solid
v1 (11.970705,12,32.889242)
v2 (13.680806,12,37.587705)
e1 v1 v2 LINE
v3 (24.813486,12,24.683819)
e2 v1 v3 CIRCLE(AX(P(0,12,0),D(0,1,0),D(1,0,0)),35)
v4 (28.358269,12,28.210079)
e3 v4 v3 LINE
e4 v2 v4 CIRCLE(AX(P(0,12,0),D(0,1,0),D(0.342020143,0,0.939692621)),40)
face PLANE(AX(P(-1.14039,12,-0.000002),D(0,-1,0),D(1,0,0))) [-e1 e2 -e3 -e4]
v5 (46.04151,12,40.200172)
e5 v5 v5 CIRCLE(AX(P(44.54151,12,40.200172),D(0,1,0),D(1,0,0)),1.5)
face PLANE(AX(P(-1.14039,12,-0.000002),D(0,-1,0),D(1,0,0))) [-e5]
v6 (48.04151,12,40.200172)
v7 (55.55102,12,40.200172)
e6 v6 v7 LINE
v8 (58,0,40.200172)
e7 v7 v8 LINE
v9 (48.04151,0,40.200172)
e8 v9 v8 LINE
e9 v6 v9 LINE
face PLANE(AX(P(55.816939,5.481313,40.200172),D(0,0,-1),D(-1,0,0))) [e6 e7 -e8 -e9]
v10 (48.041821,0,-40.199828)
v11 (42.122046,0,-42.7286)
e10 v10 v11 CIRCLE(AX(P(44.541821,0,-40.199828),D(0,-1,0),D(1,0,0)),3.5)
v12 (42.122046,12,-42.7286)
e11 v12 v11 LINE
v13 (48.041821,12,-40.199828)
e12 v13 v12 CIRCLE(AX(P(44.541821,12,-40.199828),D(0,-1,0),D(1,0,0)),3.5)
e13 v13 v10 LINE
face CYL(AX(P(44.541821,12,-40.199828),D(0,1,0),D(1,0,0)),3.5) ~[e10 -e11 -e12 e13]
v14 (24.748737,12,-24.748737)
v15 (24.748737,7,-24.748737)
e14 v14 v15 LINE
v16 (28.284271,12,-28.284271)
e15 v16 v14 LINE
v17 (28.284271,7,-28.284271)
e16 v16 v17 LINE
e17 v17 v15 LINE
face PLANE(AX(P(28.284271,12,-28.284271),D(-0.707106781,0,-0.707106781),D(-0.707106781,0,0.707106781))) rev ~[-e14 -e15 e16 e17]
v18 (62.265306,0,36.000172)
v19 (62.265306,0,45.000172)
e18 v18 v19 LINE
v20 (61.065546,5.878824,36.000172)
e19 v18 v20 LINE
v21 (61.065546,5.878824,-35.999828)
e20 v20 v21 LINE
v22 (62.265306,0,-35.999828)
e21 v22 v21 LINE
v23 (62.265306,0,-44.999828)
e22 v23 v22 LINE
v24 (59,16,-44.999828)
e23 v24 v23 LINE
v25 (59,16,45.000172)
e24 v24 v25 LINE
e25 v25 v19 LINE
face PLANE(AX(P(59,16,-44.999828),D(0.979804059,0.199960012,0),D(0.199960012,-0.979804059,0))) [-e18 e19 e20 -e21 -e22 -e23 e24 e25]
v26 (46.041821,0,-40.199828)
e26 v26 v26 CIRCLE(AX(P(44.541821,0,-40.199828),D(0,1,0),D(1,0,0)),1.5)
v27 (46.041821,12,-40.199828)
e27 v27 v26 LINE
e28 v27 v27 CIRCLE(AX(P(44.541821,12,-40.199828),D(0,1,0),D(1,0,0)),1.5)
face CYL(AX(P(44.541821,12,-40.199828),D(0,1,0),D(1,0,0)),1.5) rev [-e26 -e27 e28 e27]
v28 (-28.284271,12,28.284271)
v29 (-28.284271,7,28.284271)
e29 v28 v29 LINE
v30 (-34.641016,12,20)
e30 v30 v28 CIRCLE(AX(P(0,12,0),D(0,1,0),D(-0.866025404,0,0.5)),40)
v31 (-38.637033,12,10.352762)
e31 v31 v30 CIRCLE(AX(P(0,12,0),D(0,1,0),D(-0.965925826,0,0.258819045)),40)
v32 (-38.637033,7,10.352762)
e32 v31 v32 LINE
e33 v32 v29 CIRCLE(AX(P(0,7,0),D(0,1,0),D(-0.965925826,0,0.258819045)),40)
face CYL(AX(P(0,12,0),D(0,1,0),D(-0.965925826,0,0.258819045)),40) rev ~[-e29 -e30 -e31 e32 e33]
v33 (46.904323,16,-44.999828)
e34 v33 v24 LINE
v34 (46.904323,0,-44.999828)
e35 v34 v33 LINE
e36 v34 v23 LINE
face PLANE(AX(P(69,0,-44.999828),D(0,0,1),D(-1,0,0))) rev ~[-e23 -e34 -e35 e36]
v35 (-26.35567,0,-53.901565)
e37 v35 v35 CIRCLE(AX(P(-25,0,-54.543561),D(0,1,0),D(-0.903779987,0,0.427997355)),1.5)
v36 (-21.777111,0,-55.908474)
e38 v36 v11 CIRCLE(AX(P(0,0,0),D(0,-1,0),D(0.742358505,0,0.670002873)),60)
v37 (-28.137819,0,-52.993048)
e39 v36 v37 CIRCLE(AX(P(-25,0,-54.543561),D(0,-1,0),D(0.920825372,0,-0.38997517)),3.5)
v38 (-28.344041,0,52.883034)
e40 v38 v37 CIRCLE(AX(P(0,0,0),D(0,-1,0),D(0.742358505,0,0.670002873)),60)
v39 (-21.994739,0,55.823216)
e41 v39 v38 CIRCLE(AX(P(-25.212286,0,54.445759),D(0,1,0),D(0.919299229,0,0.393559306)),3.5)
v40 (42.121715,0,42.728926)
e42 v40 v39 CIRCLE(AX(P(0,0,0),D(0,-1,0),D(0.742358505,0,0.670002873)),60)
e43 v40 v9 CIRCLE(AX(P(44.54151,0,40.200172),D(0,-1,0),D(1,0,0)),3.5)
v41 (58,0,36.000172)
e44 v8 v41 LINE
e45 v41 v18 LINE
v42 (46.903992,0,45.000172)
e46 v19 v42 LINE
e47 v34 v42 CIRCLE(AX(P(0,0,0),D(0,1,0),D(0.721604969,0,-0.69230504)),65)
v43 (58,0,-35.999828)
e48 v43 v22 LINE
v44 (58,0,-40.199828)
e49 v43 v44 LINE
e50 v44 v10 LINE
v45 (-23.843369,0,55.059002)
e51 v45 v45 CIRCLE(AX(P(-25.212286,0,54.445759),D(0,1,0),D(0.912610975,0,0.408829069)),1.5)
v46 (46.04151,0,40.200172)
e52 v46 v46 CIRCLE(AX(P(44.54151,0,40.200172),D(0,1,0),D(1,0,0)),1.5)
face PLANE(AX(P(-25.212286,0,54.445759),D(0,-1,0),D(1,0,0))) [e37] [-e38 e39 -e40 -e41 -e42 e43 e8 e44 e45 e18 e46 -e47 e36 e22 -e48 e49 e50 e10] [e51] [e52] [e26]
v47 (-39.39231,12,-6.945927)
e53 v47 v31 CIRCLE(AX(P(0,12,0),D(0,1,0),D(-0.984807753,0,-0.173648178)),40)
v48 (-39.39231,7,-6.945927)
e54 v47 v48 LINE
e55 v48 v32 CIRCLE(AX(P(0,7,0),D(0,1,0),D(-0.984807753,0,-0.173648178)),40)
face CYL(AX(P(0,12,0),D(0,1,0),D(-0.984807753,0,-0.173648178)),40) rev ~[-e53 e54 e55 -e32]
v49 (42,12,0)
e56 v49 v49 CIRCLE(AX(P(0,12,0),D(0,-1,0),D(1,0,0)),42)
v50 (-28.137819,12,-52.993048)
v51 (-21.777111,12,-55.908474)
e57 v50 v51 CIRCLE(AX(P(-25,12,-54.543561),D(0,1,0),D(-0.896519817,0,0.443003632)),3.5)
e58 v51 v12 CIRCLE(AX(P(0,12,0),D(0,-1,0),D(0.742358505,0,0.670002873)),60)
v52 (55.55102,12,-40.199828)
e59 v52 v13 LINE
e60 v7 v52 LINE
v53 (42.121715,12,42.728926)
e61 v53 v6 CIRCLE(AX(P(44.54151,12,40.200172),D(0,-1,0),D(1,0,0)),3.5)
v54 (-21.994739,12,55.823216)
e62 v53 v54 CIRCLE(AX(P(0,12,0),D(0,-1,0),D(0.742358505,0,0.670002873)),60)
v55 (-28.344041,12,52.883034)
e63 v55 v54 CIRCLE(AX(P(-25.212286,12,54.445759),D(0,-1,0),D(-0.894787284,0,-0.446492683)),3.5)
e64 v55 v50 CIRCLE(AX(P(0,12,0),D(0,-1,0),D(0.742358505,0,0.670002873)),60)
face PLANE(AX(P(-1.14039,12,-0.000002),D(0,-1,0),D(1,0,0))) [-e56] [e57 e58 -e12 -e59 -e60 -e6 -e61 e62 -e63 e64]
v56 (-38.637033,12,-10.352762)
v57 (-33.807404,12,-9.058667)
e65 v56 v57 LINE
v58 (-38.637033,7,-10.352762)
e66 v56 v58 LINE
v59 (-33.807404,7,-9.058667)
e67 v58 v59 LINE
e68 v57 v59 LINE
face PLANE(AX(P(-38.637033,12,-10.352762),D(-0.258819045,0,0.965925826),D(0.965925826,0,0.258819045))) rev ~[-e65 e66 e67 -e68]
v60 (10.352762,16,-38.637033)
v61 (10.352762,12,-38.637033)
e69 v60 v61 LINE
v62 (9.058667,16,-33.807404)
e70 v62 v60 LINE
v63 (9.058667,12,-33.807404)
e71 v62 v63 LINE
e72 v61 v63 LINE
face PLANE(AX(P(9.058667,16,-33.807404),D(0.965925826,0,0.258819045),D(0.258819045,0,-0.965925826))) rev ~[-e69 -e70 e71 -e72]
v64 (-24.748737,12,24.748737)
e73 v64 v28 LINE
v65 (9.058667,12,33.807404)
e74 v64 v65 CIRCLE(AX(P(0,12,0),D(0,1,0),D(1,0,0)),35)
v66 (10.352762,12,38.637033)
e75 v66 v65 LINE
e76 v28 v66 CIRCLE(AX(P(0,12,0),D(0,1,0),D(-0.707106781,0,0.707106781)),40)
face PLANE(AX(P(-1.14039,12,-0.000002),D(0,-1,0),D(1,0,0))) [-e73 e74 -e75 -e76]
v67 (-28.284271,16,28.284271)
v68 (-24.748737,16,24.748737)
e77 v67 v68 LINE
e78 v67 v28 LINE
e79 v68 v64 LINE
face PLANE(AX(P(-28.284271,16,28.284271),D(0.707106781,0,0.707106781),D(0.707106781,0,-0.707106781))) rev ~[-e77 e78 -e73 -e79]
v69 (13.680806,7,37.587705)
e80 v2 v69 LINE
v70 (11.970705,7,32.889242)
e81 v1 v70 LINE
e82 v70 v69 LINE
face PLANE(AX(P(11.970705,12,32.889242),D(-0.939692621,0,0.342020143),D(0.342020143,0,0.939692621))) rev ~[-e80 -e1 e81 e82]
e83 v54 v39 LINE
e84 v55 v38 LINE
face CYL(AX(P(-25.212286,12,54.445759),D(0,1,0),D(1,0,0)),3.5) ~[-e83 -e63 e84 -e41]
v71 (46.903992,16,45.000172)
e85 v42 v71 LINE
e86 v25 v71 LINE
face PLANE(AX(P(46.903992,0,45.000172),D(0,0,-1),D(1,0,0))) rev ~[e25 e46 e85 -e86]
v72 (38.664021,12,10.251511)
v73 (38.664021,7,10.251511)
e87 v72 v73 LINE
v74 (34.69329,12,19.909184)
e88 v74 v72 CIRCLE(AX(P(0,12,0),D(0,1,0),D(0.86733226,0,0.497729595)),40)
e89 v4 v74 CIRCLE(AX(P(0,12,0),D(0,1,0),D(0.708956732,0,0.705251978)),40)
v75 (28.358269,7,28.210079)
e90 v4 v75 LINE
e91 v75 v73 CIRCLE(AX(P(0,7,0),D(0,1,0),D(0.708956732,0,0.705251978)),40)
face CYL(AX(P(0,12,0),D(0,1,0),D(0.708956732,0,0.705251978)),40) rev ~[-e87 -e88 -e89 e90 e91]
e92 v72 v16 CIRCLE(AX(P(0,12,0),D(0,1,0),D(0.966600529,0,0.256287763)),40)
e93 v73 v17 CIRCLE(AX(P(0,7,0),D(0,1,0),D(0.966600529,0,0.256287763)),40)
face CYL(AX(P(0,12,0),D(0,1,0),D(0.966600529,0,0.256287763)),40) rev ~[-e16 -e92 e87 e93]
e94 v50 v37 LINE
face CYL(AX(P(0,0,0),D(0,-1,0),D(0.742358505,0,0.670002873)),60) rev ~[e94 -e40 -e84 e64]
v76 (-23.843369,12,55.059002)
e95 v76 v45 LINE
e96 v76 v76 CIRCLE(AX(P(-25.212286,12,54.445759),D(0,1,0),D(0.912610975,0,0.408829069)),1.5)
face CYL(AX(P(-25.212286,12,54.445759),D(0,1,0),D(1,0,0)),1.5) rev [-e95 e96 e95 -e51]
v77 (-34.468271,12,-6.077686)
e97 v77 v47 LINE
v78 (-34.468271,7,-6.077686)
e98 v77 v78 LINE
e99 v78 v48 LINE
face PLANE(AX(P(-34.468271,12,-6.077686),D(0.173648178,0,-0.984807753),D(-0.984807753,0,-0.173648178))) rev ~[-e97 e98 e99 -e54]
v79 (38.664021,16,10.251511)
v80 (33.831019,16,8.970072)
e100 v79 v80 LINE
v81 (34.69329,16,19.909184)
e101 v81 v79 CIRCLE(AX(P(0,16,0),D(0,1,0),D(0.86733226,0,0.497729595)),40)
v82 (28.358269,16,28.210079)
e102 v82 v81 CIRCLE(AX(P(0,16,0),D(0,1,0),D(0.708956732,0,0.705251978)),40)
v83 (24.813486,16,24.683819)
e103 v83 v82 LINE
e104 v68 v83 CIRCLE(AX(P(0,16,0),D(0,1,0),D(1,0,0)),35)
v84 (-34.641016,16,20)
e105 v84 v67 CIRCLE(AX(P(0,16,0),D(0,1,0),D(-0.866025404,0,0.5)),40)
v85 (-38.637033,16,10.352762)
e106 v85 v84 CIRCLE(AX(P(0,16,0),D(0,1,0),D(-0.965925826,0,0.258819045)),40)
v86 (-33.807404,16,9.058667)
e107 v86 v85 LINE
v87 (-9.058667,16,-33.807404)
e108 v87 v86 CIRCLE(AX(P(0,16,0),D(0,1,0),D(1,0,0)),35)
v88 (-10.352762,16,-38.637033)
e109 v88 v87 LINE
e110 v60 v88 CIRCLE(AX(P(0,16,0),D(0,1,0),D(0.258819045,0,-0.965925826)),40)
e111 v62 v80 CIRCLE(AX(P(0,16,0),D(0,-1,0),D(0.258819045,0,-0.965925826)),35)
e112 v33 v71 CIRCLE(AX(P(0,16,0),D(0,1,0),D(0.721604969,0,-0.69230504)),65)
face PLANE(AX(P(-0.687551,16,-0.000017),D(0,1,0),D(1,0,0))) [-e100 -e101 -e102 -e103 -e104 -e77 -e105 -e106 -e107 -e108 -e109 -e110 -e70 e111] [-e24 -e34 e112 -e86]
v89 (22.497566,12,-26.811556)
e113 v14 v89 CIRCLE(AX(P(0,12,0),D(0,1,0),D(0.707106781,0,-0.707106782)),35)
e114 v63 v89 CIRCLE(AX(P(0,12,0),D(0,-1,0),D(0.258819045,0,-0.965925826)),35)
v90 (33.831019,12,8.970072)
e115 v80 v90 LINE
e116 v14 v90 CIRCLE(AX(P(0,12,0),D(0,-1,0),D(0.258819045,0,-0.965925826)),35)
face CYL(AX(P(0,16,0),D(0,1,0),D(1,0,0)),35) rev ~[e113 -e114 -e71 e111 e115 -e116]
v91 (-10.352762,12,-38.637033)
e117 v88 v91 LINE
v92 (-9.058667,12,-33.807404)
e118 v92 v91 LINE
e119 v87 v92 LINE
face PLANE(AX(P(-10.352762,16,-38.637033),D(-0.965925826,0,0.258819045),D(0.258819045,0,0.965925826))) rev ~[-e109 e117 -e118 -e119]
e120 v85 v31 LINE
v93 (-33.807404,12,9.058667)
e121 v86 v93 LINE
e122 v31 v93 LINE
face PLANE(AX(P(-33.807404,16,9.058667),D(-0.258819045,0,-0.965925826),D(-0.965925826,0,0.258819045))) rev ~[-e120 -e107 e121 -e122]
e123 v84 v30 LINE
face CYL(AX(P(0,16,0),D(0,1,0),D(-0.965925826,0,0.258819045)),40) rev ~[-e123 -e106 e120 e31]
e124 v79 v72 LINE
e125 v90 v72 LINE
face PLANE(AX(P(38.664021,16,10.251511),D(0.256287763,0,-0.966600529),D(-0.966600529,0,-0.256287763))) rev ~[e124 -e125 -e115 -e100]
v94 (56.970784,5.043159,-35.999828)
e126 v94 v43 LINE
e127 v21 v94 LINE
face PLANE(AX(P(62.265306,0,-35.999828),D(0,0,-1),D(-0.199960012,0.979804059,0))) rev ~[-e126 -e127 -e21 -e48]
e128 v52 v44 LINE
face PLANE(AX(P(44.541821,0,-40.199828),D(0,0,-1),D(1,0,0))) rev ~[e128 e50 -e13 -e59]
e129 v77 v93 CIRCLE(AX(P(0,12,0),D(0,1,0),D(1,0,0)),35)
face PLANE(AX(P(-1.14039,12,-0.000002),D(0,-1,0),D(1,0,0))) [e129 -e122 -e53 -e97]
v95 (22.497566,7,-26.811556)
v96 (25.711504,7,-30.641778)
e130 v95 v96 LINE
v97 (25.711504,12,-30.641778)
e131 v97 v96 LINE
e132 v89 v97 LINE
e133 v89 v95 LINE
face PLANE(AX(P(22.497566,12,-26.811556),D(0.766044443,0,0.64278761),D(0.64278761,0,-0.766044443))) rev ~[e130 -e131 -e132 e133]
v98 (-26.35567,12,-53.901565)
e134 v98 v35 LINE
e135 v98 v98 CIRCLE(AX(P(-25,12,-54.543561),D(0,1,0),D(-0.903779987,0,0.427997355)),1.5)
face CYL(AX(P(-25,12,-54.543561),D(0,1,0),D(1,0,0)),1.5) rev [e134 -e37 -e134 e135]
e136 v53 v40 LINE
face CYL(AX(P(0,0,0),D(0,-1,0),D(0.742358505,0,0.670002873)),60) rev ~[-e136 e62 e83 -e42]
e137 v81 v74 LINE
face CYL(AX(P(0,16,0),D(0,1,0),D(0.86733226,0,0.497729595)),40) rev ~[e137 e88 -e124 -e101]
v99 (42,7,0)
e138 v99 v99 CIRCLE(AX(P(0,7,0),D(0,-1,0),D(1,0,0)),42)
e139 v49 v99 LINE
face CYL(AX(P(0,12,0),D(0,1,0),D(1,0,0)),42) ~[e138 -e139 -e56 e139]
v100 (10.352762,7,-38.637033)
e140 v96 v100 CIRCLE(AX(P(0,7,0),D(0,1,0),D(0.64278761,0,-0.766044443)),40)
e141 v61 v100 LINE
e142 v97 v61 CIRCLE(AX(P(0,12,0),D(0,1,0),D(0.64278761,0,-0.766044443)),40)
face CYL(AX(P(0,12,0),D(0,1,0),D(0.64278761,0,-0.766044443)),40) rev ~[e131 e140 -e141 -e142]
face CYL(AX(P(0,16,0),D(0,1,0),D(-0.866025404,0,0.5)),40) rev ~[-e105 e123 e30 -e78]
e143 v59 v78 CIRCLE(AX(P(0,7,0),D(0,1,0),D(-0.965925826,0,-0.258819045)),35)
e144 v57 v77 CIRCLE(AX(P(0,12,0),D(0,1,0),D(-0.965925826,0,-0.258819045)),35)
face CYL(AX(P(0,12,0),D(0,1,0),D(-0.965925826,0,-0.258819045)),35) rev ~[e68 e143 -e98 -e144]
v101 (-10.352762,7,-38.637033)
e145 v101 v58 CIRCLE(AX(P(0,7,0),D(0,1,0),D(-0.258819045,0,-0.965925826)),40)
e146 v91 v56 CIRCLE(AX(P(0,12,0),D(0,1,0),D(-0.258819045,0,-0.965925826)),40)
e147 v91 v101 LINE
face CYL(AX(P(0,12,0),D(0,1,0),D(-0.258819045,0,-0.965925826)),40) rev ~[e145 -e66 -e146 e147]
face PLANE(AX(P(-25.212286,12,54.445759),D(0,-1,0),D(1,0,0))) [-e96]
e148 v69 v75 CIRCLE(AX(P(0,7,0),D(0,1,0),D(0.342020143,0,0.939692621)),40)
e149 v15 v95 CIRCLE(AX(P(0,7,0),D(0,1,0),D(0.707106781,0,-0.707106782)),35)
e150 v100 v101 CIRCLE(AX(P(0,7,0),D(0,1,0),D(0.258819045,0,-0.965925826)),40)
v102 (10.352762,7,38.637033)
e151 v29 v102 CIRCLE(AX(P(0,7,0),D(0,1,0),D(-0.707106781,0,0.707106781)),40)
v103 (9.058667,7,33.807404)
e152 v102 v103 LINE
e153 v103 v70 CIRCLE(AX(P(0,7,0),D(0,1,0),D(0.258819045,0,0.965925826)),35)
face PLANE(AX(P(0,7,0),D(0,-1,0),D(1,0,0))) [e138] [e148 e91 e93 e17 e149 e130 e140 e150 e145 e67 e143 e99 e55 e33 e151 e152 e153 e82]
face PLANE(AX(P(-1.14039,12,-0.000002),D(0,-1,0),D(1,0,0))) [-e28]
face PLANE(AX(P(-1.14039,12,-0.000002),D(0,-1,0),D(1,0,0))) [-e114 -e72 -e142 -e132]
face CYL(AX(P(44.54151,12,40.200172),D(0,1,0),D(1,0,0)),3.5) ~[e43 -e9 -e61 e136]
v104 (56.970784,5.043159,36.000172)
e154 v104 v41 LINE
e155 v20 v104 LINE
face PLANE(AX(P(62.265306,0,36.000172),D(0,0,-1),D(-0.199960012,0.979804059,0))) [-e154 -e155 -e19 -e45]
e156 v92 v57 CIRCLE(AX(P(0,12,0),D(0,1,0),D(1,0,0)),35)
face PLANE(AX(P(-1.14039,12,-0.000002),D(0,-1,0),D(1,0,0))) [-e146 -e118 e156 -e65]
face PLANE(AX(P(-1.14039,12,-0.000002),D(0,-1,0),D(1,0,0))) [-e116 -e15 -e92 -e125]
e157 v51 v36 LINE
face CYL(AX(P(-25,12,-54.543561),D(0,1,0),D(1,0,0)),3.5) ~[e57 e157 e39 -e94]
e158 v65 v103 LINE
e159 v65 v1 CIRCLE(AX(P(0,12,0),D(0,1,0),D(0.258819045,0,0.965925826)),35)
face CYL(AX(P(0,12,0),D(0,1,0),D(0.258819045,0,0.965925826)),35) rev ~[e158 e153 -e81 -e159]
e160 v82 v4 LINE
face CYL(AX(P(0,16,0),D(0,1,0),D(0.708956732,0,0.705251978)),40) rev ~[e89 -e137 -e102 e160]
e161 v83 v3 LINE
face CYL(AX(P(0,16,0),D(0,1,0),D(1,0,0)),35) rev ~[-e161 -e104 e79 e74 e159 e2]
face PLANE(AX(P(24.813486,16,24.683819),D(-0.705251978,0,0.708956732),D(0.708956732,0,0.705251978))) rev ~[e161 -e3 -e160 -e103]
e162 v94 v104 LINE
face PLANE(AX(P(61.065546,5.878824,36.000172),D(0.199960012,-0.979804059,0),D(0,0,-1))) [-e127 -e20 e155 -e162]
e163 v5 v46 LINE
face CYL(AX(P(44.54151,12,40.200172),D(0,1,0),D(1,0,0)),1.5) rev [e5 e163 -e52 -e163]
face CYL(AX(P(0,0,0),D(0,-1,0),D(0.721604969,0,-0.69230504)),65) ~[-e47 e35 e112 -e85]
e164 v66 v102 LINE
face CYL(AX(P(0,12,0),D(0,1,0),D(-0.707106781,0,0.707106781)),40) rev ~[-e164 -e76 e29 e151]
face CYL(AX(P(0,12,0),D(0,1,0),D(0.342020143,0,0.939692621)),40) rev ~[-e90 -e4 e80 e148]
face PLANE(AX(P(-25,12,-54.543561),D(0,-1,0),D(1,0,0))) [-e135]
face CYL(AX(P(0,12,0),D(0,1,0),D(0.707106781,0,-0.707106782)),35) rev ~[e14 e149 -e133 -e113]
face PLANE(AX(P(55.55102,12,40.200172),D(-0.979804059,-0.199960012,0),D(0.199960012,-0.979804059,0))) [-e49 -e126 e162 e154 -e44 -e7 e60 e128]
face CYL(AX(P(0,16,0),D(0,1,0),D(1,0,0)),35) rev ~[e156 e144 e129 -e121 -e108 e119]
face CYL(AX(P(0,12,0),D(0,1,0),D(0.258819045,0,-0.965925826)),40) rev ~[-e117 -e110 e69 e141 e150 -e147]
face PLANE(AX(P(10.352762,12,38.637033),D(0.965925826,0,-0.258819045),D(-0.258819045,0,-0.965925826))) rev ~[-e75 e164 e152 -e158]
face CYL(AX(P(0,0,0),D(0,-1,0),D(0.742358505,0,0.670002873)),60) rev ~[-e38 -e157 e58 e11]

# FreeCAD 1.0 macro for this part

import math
import FreeCAD as App
import Part
import Sketcher

V = App.Vector
Q = App.Units.Quantity

doc = App.newDocument("Part")
params = doc.addObject("Spreadsheet::Sheet", "Params")
for row, (alias, value) in enumerate([
    ("sketch1_radius", "65 mm"),
    ("sketch1_height", "90 mm"),
    ("pad1_length", "16 mm"),
    ("sketch2_radius", "60 mm"),
    ("sketch2_height", "80.4 mm"),
    ("pocket1_length", "12 mm"),
    ("sketch3_width", "5 mm"),
    ("sketch3_height", "72 mm"),
    ("pocket2_length", "16 mm"),
    ("sketch4_diameter", "70 mm"),
    ("pocket3_length", "16 mm"),
    ("sketch5_radius", "35 mm"),
    ("sketch5_radius2", "40 mm"),
    ("pocket4_length", "10 mm"),
    ("sketch6_diameter", "84 mm"),
    ("sketch6_radius", "40 mm"),
    ("sketch6_radius2", "35 mm"),
    ("pad2_length", "5 mm"),
    ("sketch7_diameter", "7 mm"),
    ("sketch7_diameter2", "3 mm"),
    ("pad3_length", "12 mm"),
    ("sketch8_diameter", "3 mm"),
    ("pocket5_length", "12 mm"),
    ("sketch9_height", "16 mm"),
    ("pad4_length", "90 mm"),
    ("sketch10_width", "10 mm"),
    ("sketch10_height", "49 mm"),
    ("pocket6_length", "90 mm"),
    ("sketch11_height", "12 mm"),
    ("pocket7_length", "80.4 mm"),
    ("sketch12_width", "72 mm"),
    ("sketch12_height", "6 mm"),
    ("pocket8_length", "8.4 mm"),
], start=1):
    params.set(f"A{row}", alias)
    params.set(f"B{row}", "=" + value)
    params.setAlias(f"B{row}", alias)

body = doc.addObject("PartDesign::Body", "Body")

sketch1 = body.newObject("Sketcher::SketchObject", "Sketch")
sketch1.AttachmentSupport = (doc.getObject("XZ_Plane"), [""])
sketch1.MapMode = "FlatFace"
sketch1.addGeometry([
    Part.ArcOfCircle(Part.Circle(V(0, 0, 0), V(0, 0, 1), 65), math.radians(44), math.radians(316)),
    Part.LineSegment(V(47, 45, 0), V(69, 45, 0)),
    Part.LineSegment(V(69, 45, 0), V(69, -45, 0)),
    Part.LineSegment(V(69, -45, 0), V(47, -45, 0)),
], False)
sketch1.addConstraint([
    Sketcher.Constraint("Coincident", 0, 1, 1, 1),
    Sketcher.Constraint("Coincident", 1, 2, 2, 1),
    Sketcher.Constraint("Coincident", 2, 2, 3, 1),
    Sketcher.Constraint("Coincident", 3, 2, 0, 2),
    Sketcher.Constraint("Horizontal", 1),
    Sketcher.Constraint("Vertical", 2),
    Sketcher.Constraint("Horizontal", 3),
    Sketcher.Constraint("Coincident", 0, 3, -1, 1),
    Sketcher.Constraint("Radius", 0, Q("65 mm")),
    Sketcher.Constraint("DistanceY", 2, 2, 2, 1, Q("90 mm")),
    Sketcher.Constraint("DistanceX", -1, 1, 1, 2, Q("69 mm")),
    Sketcher.Constraint("DistanceX", 1, 1, 1, 2, Q("22.096008 mm")),
])
sketch1.setExpression("Constraints[8]", "Params.sketch1_radius")
sketch1.setExpression("Constraints[9]", "Params.sketch1_height")
pad1 = body.newObject("PartDesign::Pad", "Pad")
pad1.Profile = sketch1
pad1.setExpression("Length", "Params.pad1_length")
pad1.Reversed = True

sketch2 = body.newObject("Sketcher::SketchObject", "Sketch001")
sketch2.AttachmentSupport = (doc.getObject("XZ_Plane"), [""])
sketch2.MapMode = "FlatFace"
sketch2.addGeometry([
    Part.ArcOfCircle(Part.Circle(V(0, 0, 0), V(0, 0, 1), 60), math.radians(42), math.radians(318)),
    Part.LineSegment(V(45, -40, 0), V(64, -40, 0)),
    Part.LineSegment(V(64, -40, 0), V(64, 40, 0)),
    Part.LineSegment(V(64, 40, 0), V(45, 40, 0)),
], False)
sketch2.addConstraint([
    Sketcher.Constraint("Coincident", 0, 2, 1, 1),
    Sketcher.Constraint("Coincident", 1, 2, 2, 1),
    Sketcher.Constraint("Coincident", 2, 2, 3, 1),
    Sketcher.Constraint("Coincident", 3, 2, 0, 1),
    Sketcher.Constraint("Horizontal", 1),
    Sketcher.Constraint("Vertical", 2),
    Sketcher.Constraint("Horizontal", 3),
    Sketcher.Constraint("Coincident", 0, 3, -1, 1),
    Sketcher.Constraint("Radius", 0, Q("60 mm")),
    Sketcher.Constraint("DistanceY", 2, 1, 2, 2, Q("80.4 mm")),
    Sketcher.Constraint("DistanceX", -1, 1, 1, 2, Q("64 mm")),
    Sketcher.Constraint("DistanceX", 1, 1, 1, 2, Q("19.458179 mm")),
])
sketch2.setExpression("Constraints[8]", "Params.sketch2_radius")
sketch2.setExpression("Constraints[9]", "Params.sketch2_height")
pocket1 = body.newObject("PartDesign::Pocket", "Pocket")
pocket1.Profile = sketch2
pocket1.setExpression("Length", "Params.pocket1_length")

sketch3 = body.newObject("Sketcher::SketchObject", "Sketch002")
sketch3.AttachmentSupport = (doc.getObject("YZ_Plane"), [""])
sketch3.MapMode = "FlatFace"
sketch3.AttachmentOffset = App.Placement(V(0, 0, 69), App.Rotation())
sketch3.addGeometry([
    Part.LineSegment(V(5, 36, 0), V(0, 36, 0)),
    Part.LineSegment(V(0, 36, 0), V(0, -36, 0)),
    Part.LineSegment(V(0, -36, 0), V(5, -36, 0)),
    Part.LineSegment(V(5, -36, 0), V(5, 36, 0)),
], False)
sketch3.addConstraint([
    Sketcher.Constraint("Coincident", 0, 2, 1, 1),
    Sketcher.Constraint("Coincident", 1, 2, 2, 1),
    Sketcher.Constraint("Coincident", 2, 2, 3, 1),
    Sketcher.Constraint("Coincident", 3, 2, 0, 1),
    Sketcher.Constraint("Horizontal", 0),
    Sketcher.Constraint("Vertical", 1),
    Sketcher.Constraint("Horizontal", 2),
    Sketcher.Constraint("Vertical", 3),
    Sketcher.Constraint("PointOnObject", 0, 2, -2),
    Sketcher.Constraint("DistanceX", 0, 2, 0, 1, Q("5 mm")),
    Sketcher.Constraint("DistanceY", 1, 2, 1, 1, Q("72 mm")),
    Sketcher.Constraint("DistanceY", -1, 1, 0, 2, Q("36.000172 mm")),
])
sketch3.setExpression("Constraints[9]", "Params.sketch3_width")
sketch3.setExpression("Constraints[10]", "Params.sketch3_height")
pocket2 = body.newObject("PartDesign::Pocket", "Pocket001")
pocket2.Profile = sketch3
pocket2.setExpression("Length", "Params.pocket2_length")

sketch4 = body.newObject("Sketcher::SketchObject", "Sketch003")
sketch4.AttachmentSupport = (doc.getObject("XZ_Plane"), [""])
sketch4.MapMode = "FlatFace"
sketch4.AttachmentOffset = App.Placement(V(0, 0, -16), App.Rotation())
sketch4.addGeometry(Part.Circle(V(0, 0, 0), V(0, 0, 1), 35), False)
sketch4.addConstraint([
    Sketcher.Constraint("Coincident", 0, 3, -1, 1),
    Sketcher.Constraint("Diameter", 0, Q("70 mm")),
])
sketch4.setExpression("Constraints[1]", "Params.sketch4_diameter")
pocket3 = body.newObject("PartDesign::Pocket", "Pocket002")
pocket3.Profile = sketch4
pocket3.setExpression("Length", "Params.pocket3_length")
pocket3.Reversed = True

sketch5 = body.newObject("Sketcher::SketchObject", "Sketch004")
sketch5.AttachmentSupport = (doc.getObject("XZ_Plane"), [""])
sketch5.MapMode = "FlatFace"
sketch5.AttachmentOffset = App.Placement(V(0, 0, -16), App.Rotation())
sketch5.addGeometry([
    Part.LineSegment(V(-28.3, 28.3, 0), V(-24.7, 24.7, 0)),
    Part.ArcOfCircle(Part.Circle(V(0, 0, 0), V(0, 0, 1), 35), math.radians(135), math.radians(150)),
    Part.ArcOfCircle(Part.Circle(V(0, 0, 0), V(0, 0, 1), 35), math.radians(150), math.radians(165)),
    Part.LineSegment(V(-33.8, 9.1, 0), V(-38.6, 10.4, 0)),
    Part.ArcOfCircle(Part.Circle(V(0, 0, 0), V(0, 0, 1), 40), math.radians(150), math.radians(165)),
    Part.ArcOfCircle(Part.Circle(V(0, 0, 0), V(0, 0, 1), 40), math.radians(135), math.radians(150)),
    Part.LineSegment(V(-10.4, -38.6, 0), V(-9.1, -33.8, 0)),
    Part.ArcOfCircle(Part.Circle(V(0, 0, 0), V(0, 0, 1), 35), math.radians(-105), math.radians(-75)),
    Part.LineSegment(V(9.1, -33.8, 0), V(10.4, -38.6, 0)),
    Part.ArcOfCircle(Part.Circle(V(0, 0, 0), V(0, 0, 1), 40), math.radians(-105), math.radians(-75)),
    Part.ArcOfCircle(Part.Circle(V(0, 0, 0), V(0, 0, 1), 35), math.radians(14.85), math.radians(29.85)),
    Part.ArcOfCircle(Part.Circle(V(0, 0, 0), V(0, 0, 1), 35), math.radians(29.85), math.radians(44.85)),
    Part.LineSegment(V(24.8, 24.7, 0), V(28.4, 28.2, 0)),
    Part.ArcOfCircle(Part.Circle(V(0, 0, 0), V(0, 0, 1), 40), math.radians(29.85), math.radians(44.85)),
    Part.ArcOfCircle(Part.Circle(V(0, 0, 0), V(0, 0, 1), 40), math.radians(14.85), math.radians(29.85)),
    Part.LineSegment(V(38.7, 10.3, 0), V(33.8, 9, 0)),
], False)
sketch5.addConstraint([
    Sketcher.Constraint("Coincident", 0, 2, 1, 1),
    Sketcher.Constraint("Tangent", 1, 2, 2, 1),
    Sketcher.Constraint("Coincident", 2, 2, 3, 1),
    Sketcher.Constraint("Coincident", 3, 2, 4, 2),
    Sketcher.Constraint("Tangent", 4, 1, 5, 2),
    Sketcher.Constraint("Coincident", 5, 1, 0, 1),
    Sketcher.Constraint("Coincident", 6, 2, 7, 1),
    Sketcher.Constraint("Coincident", 7, 2, 8, 1),
    Sketcher.Constraint("Coincident", 8, 2, 9, 2),
    Sketcher.Constraint("Coincident", 9, 1, 6, 1),
    Sketcher.Constraint("Tangent", 10, 2, 11, 1),
    Sketcher.Constraint("Coincident", 11, 2, 12, 1),
    Sketcher.Constraint("Coincident", 12, 2, 13, 2),
    Sketcher.Constraint("Tangent", 13, 1, 14, 2),
    Sketcher.Constraint("Coincident", 14, 1, 15, 1),
    Sketcher.Constraint("Coincident", 15, 2, 10, 1),
    Sketcher.Constraint("Coincident", 1, 3, -1, 1),
    Sketcher.Constraint("Coincident", 4, 3, -1, 1),
    Sketcher.Constraint("Coincident", 7, 3, -1, 1),
    Sketcher.Constraint("Coincident", 9, 3, -1, 1),
    Sketcher.Constraint("Coincident", 10, 3, -1, 1),
    Sketcher.Constraint("Coincident", 13, 3, -1, 1),
    Sketcher.Constraint("Equal", 1, 2),
    Sketcher.Constraint("Equal", 4, 5),
    Sketcher.Constraint("Equal", 2, 7),
    Sketcher.Constraint("Equal", 5, 9),
    Sketcher.Constraint("Equal", 7, 10),
    Sketcher.Constraint("Equal", 10, 11),
    Sketcher.Constraint("Equal", 9, 13),
    Sketcher.Constraint("Equal", 13, 14),
    Sketcher.Constraint("Perpendicular", 3, 6),
    Sketcher.Constraint("Horizontal", 6, 2, 7, 2),
    Sketcher.Constraint("Horizontal", 8, 2, 9, 1),
    Sketcher.Constraint("Radius", 1, Q("35 mm")),
    Sketcher.Constraint("Radius", 4, Q("40 mm")),
    Sketcher.Constraint("Angle", 0, Q("-45 deg")),
    Sketcher.Constraint("Angle", 3, Q("165 deg")),
    Sketcher.Constraint("DistanceY", -1, 1, 4, 1, Q("20 mm")),
    Sketcher.Constraint("DistanceY", -1, 1, 1, 2, Q("17.5 mm")),
    Sketcher.Constraint("DistanceY", -1, 1, 3, 2, Q("10.352762 mm")),
    Sketcher.Constraint("DistanceX", 5, 1, -1, 1, Q("28.284271 mm")),
    Sketcher.Constraint("DistanceX", -1, 1, 8, 2, Q("10.352762 mm")),
    Sketcher.Constraint("DistanceX", -1, 1, 10, 2, Q("30.356629 mm")),
    Sketcher.Constraint("DistanceY", -1, 1, 11, 2, Q("24.683819 mm")),
    Sketcher.Constraint("DistanceX", -1, 1, 12, 2, Q("28.358269 mm")),
    Sketcher.Constraint("DistanceX", -1, 1, 13, 1, Q("34.69329 mm")),
    Sketcher.Constraint("DistanceX", -1, 1, 14, 1, Q("38.664021 mm")),
    Sketcher.Constraint("DistanceX", -1, 1, 15, 2, Q("33.831019 mm")),
])
sketch5.setExpression("Constraints[33]", "Params.sketch5_radius")
sketch5.setExpression("Constraints[34]", "Params.sketch5_radius2")
pocket4 = body.newObject("PartDesign::Pocket", "Pocket003")
pocket4.Profile = sketch5
pocket4.setExpression("Length", "Params.pocket4_length")
pocket4.Reversed = True

sketch6 = body.newObject("Sketcher::SketchObject", "Sketch005")
sketch6.AttachmentSupport = (doc.getObject("XZ_Plane"), [""])
sketch6.MapMode = "FlatFace"
sketch6.AttachmentOffset = App.Placement(V(0, 0, -12), App.Rotation())
sketch6.addGeometry([
    Part.Circle(V(0, 0, 0), V(0, 0, 1), 42),
    Part.ArcOfCircle(Part.Circle(V(0, 0, 0), V(0, 0, 1), 40), math.radians(135), math.radians(165)),
    Part.ArcOfCircle(Part.Circle(V(0, 0, 0), V(0, 0, 1), 40), math.radians(75), math.radians(135)),
    Part.LineSegment(V(10.4, 38.6, 0), V(9.1, 33.8, 0)),
    Part.ArcOfCircle(Part.Circle(V(0, 0, 0), V(0, 0, 1), 35), math.radians(70), math.radians(75)),
    Part.LineSegment(V(12, 32.9, 0), V(13.7, 37.6, 0)),
    Part.ArcOfCircle(Part.Circle(V(0, 0, 0), V(0, 0, 1), 40), math.radians(45), math.radians(70)),
    Part.ArcOfCircle(Part.Circle(V(0, 0, 0), V(0, 0, 1), 40), math.radians(15), math.radians(45)),
    Part.ArcOfCircle(Part.Circle(V(0, 0, 0), V(0, 0, 1), 40), math.radians(-45), math.radians(15)),
    Part.LineSegment(V(28.3, -28.3, 0), V(24.7, -24.7, 0)),
    Part.ArcOfCircle(Part.Circle(V(0, 0, 0), V(0, 0, 1), 35), math.radians(-50), math.radians(-45)),
    Part.LineSegment(V(22.5, -26.8, 0), V(25.7, -30.6, 0)),
    Part.ArcOfCircle(Part.Circle(V(0, 0, 0), V(0, 0, 1), 40), math.radians(-75), math.radians(-50)),
    Part.ArcOfCircle(Part.Circle(V(0, 0, 0), V(0, 0, 1), 40), math.radians(-105), math.radians(-75)),
    Part.ArcOfCircle(Part.Circle(V(0, 0, 0), V(0, 0, 1), 40), math.radians(-165), math.radians(-105)),
    Part.LineSegment(V(-38.6, -10.4, 0), V(-33.8, -9.1, 0)),
    Part.ArcOfCircle(Part.Circle(V(0, 0, 0), V(0, 0, 1), 35), math.radians(-170), math.radians(-165)),
    Part.LineSegment(V(-34.5, -6.1, 0), V(-39.4, -6.9, 0)),
    Part.ArcOfCircle(Part.Circle(V(0, 0, 0), V(0, 0, 1), 40), math.radians(165), math.radians(190)),
], False)
sketch6.addConstraint([
    Sketcher.Constraint("Tangent", 1, 1, 2, 2),
    Sketcher.Constraint("Coincident", 2, 1, 3, 1),
    Sketcher.Constraint("Coincident", 3, 2, 4, 2),
    Sketcher.Constraint("Coincident", 4, 1, 5, 1),
    Sketcher.Constraint("Coincident", 5, 2, 6, 2),
    Sketcher.Constraint("Tangent", 6, 1, 7, 2),
    Sketcher.Constraint("Tangent", 7, 1, 8, 2),
    Sketcher.Constraint("Coincident", 8, 1, 9, 1),
    Sketcher.Constraint("Coincident", 9, 2, 10, 2),
    Sketcher.Constraint("Coincident", 10, 1, 11, 1),
    Sketcher.Constraint("Coincident", 11, 2, 12, 2),
    Sketcher.Constraint("Tangent", 12, 1, 13, 2),
    Sketcher.Constraint("Tangent", 13, 1, 14, 2),
    Sketcher.Constraint("Coincident", 14, 1, 15, 1),
    Sketcher.Constraint("Coincident", 15, 2, 16, 2),
    Sketcher.Constraint("Coincident", 16, 1, 17, 1),
    Sketcher.Constraint("Coincident", 17, 2, 18, 2),
    Sketcher.Constraint("Tangent", 18, 1, 1, 2),
    Sketcher.Constraint("Coincident", 0, 3, -1, 1),
    Sketcher.Constraint("Coincident", 1, 3, -1, 1),
    Sketcher.Constraint("Coincident", 4, 3, -1, 1),
    Sketcher.Constraint("Coincident", 6, 3, -1, 1),
    Sketcher.Constraint("Coincident", 8, 3, -1, 1),
    Sketcher.Constraint("Coincident", 10, 3, -1, 1),
    Sketcher.Constraint("Coincident", 12, 3, -1, 1),
    Sketcher.Constraint("Coincident", 14, 3, -1, 1),
    Sketcher.Constraint("Coincident", 16, 3, -1, 1),
    Sketcher.Constraint("Equal", 1, 2),
    Sketcher.Constraint("Equal", 2, 6),
    Sketcher.Constraint("Equal", 4, 10),
    Sketcher.Constraint("Equal", 8, 12),
    Sketcher.Constraint("Equal", 10, 16),
    Sketcher.Constraint("Equal", 14, 18),
    Sketcher.Constraint("Horizontal", 12, 1, 13, 1),
    Sketcher.Constraint("Vertical", 2, 1, 12, 1),
    Sketcher.Constraint("Vertical", 14, 1, 18, 1),
    Sketcher.Constraint("Diameter", 0, Q("84 mm")),
    Sketcher.Constraint("Radius", 1, Q("40 mm")),
    Sketcher.Constraint("Radius", 4, Q("35 mm")),
    Sketcher.Constraint("Angle", 3, Q("-105 deg")),
    Sketcher.Constraint("Angle", 5, Q("70 deg")),
    Sketcher.Constraint("Angle", 9, Q("135 deg")),
    Sketcher.Constraint("Angle", 11, Q("-50 deg")),
    Sketcher.Constraint("Angle", 15, Q("15 deg")),
    Sketcher.Constraint("Angle", 17, Q("-170 deg")),
    Sketcher.Constraint("DistanceX", 16, 1, 1, 1, Q("6.184 mm")),
    Sketcher.Constraint("DistanceY", 3, 2, 5, 2, Q("3.780301 mm")),
    Sketcher.Constraint("DistanceX", 13, 1, 9, 2, Q("35.101499 mm")),
    Sketcher.Constraint("DistanceY", 17, 2, 1, 1, Q("35.230198 mm")),
    Sketcher.Constraint("DistanceX", -1, 1, 2, 1, Q("10.352762 mm")),
    Sketcher.Constraint("DistanceX", -1, 1, 6, 1, Q("28.358269 mm")),
    Sketcher.Constraint("DistanceX", -1, 1, 7, 1, Q("38.664021 mm")),
    Sketcher.Constraint("DistanceY", 14, 1, -1, 1, Q("10.352762 mm")),
    Sketcher.Constraint("DistanceX", 10, 1, 9, 2, Q("2.251171 mm")),
])
sketch6.setExpression("Constraints[36]", "Params.sketch6_diameter")
sketch6.setExpression("Constraints[37]", "Params.sketch6_radius")
sketch6.setExpression("Constraints[38]", "Params.sketch6_radius2")
pad2 = body.newObject("PartDesign::Pad", "Pad001")
pad2.Profile = sketch6
pad2.setExpression("Length", "Params.pad2_length")

sketch7 = body.newObject("Sketcher::SketchObject", "Sketch006")
sketch7.AttachmentSupport = (doc.getObject("XZ_Plane"), [""])
sketch7.MapMode = "FlatFace"
sketch7.AttachmentOffset = App.Placement(V(0, 0, -12), App.Rotation())
sketch7.addGeometry([
    Part.Circle(V(-25.2, 54.4, 0), V(0, 0, 1), 3.5),
    Part.Circle(V(-25.2, 54.4, 0), V(0, 0, 1), 1.5),
    Part.Circle(V(-25, -54.5, 0), V(0, 0, 1), 3.5),
    Part.Circle(V(-25, -54.5, 0), V(0, 0, 1), 1.5),
    Part.Circle(V(44.5, 40.2, 0), V(0, 0, 1), 3.5),
    Part.Circle(V(44.5, 40.2, 0), V(0, 0, 1), 1.5),
    Part.Circle(V(44.5, -40.2, 0), V(0, 0, 1), 3.5),
    Part.Circle(V(44.5, -40.2, 0), V(0, 0, 1), 1.5),
], False)
sketch7.addConstraint([
    Sketcher.Constraint("Coincident", 1, 3, 0, 3),
    Sketcher.Constraint("Coincident", 3, 3, 2, 3),
    Sketcher.Constraint("Coincident", 5, 3, 4, 3),
    Sketcher.Constraint("Coincident", 7, 3, 6, 3),
    Sketcher.Constraint("Equal", 0, 2),
    Sketcher.Constraint("Equal", 1, 3),
    Sketcher.Constraint("Equal", 2, 4),
    Sketcher.Constraint("Equal", 3, 5),
    Sketcher.Constraint("Equal", 4, 6),
    Sketcher.Constraint("Equal", 5, 7),
    Sketcher.Constraint("Diameter", 0, Q("7 mm")),
    Sketcher.Constraint("Diameter", 1, Q("3 mm")),
    Sketcher.Constraint("DistanceX", 2, 3, -1, 1, Q("25 mm")),
    Sketcher.Constraint("DistanceY", 6, 3, 4, 3, Q("80.4 mm")),
    Sketcher.Constraint("DistanceY", -1, 1, 0, 3, Q("54.445759 mm")),
    Sketcher.Constraint("DistanceY", 2, 3, -1, 1, Q("54.543561 mm")),
    Sketcher.Constraint("DistanceX", -1, 1, 4, 3, Q("44.54151 mm")),
    Sketcher.Constraint("DistanceX", -1, 1, 6, 3, Q("44.541821 mm")),
    Sketcher.Constraint("DistanceX", 0, 3, -1, 1, Q("25.212286 mm")),
    Sketcher.Constraint("DistanceY", -1, 1, 4, 3, Q("40.200172 mm")),
])
sketch7.setExpression("Constraints[10]", "Params.sketch7_diameter")
sketch7.setExpression("Constraints[11]", "Params.sketch7_diameter2")
pad3 = body.newObject("PartDesign::Pad", "Pad002")
pad3.Profile = sketch7
pad3.setExpression("Length", "Params.pad3_length")

sketch8 = body.newObject("Sketcher::SketchObject", "Sketch007")
sketch8.AttachmentSupport = (doc.getObject("XZ_Plane"), [""])
sketch8.MapMode = "FlatFace"
sketch8.AttachmentOffset = App.Placement(V(0, 0, -12), App.Rotation())
sketch8.addGeometry([
    Part.Circle(V(44.5, 40.2, 0), V(0, 0, 1), 1.5),
    Part.Circle(V(-25.2, 54.4, 0), V(0, 0, 1), 1.5),
    Part.Circle(V(-25, -54.5, 0), V(0, 0, 1), 1.5),
    Part.Circle(V(44.5, -40.2, 0), V(0, 0, 1), 1.5),
], False)
sketch8.addConstraint([
    Sketcher.Constraint("Equal", 0, 1),
    Sketcher.Constraint("Equal", 1, 2),
    Sketcher.Constraint("Equal", 2, 3),
    Sketcher.Constraint("Diameter", 0, Q("3 mm")),
    Sketcher.Constraint("DistanceX", 2, 3, -1, 1, Q("25 mm")),
    Sketcher.Constraint("DistanceY", 3, 3, 0, 3, Q("80.4 mm")),
    Sketcher.Constraint("DistanceX", -1, 1, 0, 3, Q("44.54151 mm")),
    Sketcher.Constraint("DistanceY", -1, 1, 1, 3, Q("54.445759 mm")),
    Sketcher.Constraint("DistanceY", 2, 3, -1, 1, Q("54.543561 mm")),
    Sketcher.Constraint("DistanceX", -1, 1, 3, 3, Q("44.541821 mm")),
    Sketcher.Constraint("DistanceY", -1, 1, 0, 3, Q("40.200172 mm")),
    Sketcher.Constraint("DistanceX", 1, 3, -1, 1, Q("25.212286 mm")),
])
sketch8.setExpression("Constraints[3]", "Params.sketch8_diameter")
pocket5 = body.newObject("PartDesign::Pocket", "Pocket004")
pocket5.Profile = sketch8
pocket5.setExpression("Length", "Params.pocket5_length")
pocket5.Reversed = True

sketch9 = body.newObject("Sketcher::SketchObject", "Sketch008")
sketch9.AttachmentSupport = (doc.getObject("XY_Plane"), [""])
sketch9.MapMode = "FlatFace"
sketch9.AttachmentOffset = App.Placement(V(0, 0, 45.000172), App.Rotation())
sketch9.addGeometry([
    Part.LineSegment(V(55, 16, 0), V(55, 0, 0)),
    Part.LineSegment(V(55, 0, 0), V(69, 0, 0)),
    Part.LineSegment(V(69, 0, 0), V(69, 16, 0)),
    Part.LineSegment(V(69, 16, 0), V(55, 16, 0)),
], False)
sketch9.addConstraint([
    Sketcher.Constraint("Coincident", 0, 2, 1, 1),
    Sketcher.Constraint("Coincident", 1, 2, 2, 1),
    Sketcher.Constraint("Coincident", 2, 2, 3, 1),
    Sketcher.Constraint("Coincident", 3, 2, 0, 1),
    Sketcher.Constraint("Vertical", 0),
    Sketcher.Constraint("Horizontal", 1),
    Sketcher.Constraint("Vertical", 2),
    Sketcher.Constraint("Horizontal", 3),
    Sketcher.Constraint("PointOnObject", 0, 2, -1),
    Sketcher.Constraint("DistanceY", 0, 2, 0, 1, Q("16 mm")),
    Sketcher.Constraint("DistanceX", -1, 1, 1, 2, Q("69 mm")),
    Sketcher.Constraint("DistanceX", 1, 1, 1, 2, Q("14.235606 mm")),
])
sketch9.setExpression("Constraints[9]", "Params.sketch9_height")
pad4 = body.newObject("PartDesign::Pad", "Pad003")
pad4.Profile = sketch9
pad4.setExpression("Length", "Params.pad4_length")
pad4.Reversed = True

sketch10 = body.newObject("Sketcher::SketchObject", "Sketch009")
sketch10.AttachmentSupport = (doc.getObject("XY_Plane"), [""])
sketch10.MapMode = "FlatFace"
sketch10.AttachmentOffset = App.Placement(V(0, 0, -44.999828), App.Rotation())
sketch10.addGeometry([
    Part.LineSegment(V(59, 16, 0), V(69, 16, 0)),
    Part.LineSegment(V(69, 16, 0), V(69, -33, 0)),
    Part.LineSegment(V(69, -33, 0), V(59, 16, 0)),
], False)
sketch10.addConstraint([
    Sketcher.Constraint("Coincident", 0, 2, 1, 1),
    Sketcher.Constraint("Coincident", 1, 2, 2, 1),
    Sketcher.Constraint("Coincident", 2, 2, 0, 1),
    Sketcher.Constraint("Horizontal", 0),
    Sketcher.Constraint("Vertical", 1),
    Sketcher.Constraint("DistanceX", 0, 1, 0, 2, Q("10 mm")),
    Sketcher.Constraint("DistanceY", 1, 2, 1, 1, Q("49 mm")),
    Sketcher.Constraint("DistanceX", -1, 1, 0, 2, Q("69 mm")),
    Sketcher.Constraint("DistanceY", -1, 1, 0, 2, Q("16 mm")),
])
sketch10.setExpression("Constraints[5]", "Params.sketch10_width")
sketch10.setExpression("Constraints[6]", "Params.sketch10_height")
pocket6 = body.newObject("PartDesign::Pocket", "Pocket005")
pocket6.Profile = sketch10
pocket6.setExpression("Length", "Params.pocket6_length")
pocket6.Reversed = True

sketch11 = body.newObject("Sketcher::SketchObject", "Sketch010")
sketch11.AttachmentSupport = (doc.getObject("XY_Plane"), [""])
sketch11.MapMode = "FlatFace"
sketch11.AttachmentOffset = App.Placement(V(0, 0, 40.200172), App.Rotation())
sketch11.addGeometry([
    Part.LineSegment(V(54.7, 0, 0), V(58, 0, 0)),
    Part.LineSegment(V(58, 0, 0), V(55.6, 12, 0)),
    Part.LineSegment(V(55.6, 12, 0), V(54.7, 12, 0)),
    Part.LineSegment(V(54.7, 12, 0), V(54.7, 0, 0)),
], False)
sketch11.addConstraint([
    Sketcher.Constraint("Coincident", 0, 2, 1, 1),
    Sketcher.Constraint("Coincident", 1, 2, 2, 1),
    Sketcher.Constraint("Coincident", 2, 2, 3, 1),
    Sketcher.Constraint("Coincident", 3, 2, 0, 1),
    Sketcher.Constraint("Horizontal", 0),
    Sketcher.Constraint("Horizontal", 2),
    Sketcher.Constraint("Vertical", 3),
    Sketcher.Constraint("PointOnObject", 0, 2, -1),
    Sketcher.Constraint("DistanceY", 3, 2, 3, 1, Q("12 mm")),
    Sketcher.Constraint("DistanceX", -1, 1, 0, 2, Q("58 mm")),
    Sketcher.Constraint("DistanceX", 0, 1, 0, 2, Q("3.265306 mm")),
    Sketcher.Constraint("DistanceX", 2, 2, 2, 1, Q("0.816327 mm")),
])
sketch11.setExpression("Constraints[8]", "Params.sketch11_height")
pocket7 = body.newObject("PartDesign::Pocket", "Pocket006")
pocket7.Profile = sketch11
pocket7.setExpression("Length", "Params.pocket7_length")

sketch12 = body.newObject("Sketcher::SketchObject", "Sketch011")
sketch12.Placement = App.Placement(V(59.77569, 12.19912, 0), App.Rotation(V(0, 0, -1), V(-0.199960012, 0.979804059, 0), V(0.979804059, 0.199960012, 0), "ZXY"))
sketch12.addGeometry([
    Part.LineSegment(V(-36, -6, 0), V(-36, -12, 0)),
    Part.LineSegment(V(-36, -12, 0), V(36, -12, 0)),
    Part.LineSegment(V(36, -12, 0), V(36, -6, 0)),
    Part.LineSegment(V(36, -6, 0), V(-36, -6, 0)),
], False)
sketch12.addConstraint([
    Sketcher.Constraint("Coincident", 0, 2, 1, 1),
    Sketcher.Constraint("Coincident", 1, 2, 2, 1),
    Sketcher.Constraint("Coincident", 2, 2, 3, 1),
    Sketcher.Constraint("Coincident", 3, 2, 0, 1),
    Sketcher.Constraint("Vertical", 0),
    Sketcher.Constraint("Horizontal", 1),
    Sketcher.Constraint("Vertical", 2),
    Sketcher.Constraint("Horizontal", 3),
    Sketcher.Constraint("DistanceX", 1, 1, 1, 2, Q("72 mm")),
    Sketcher.Constraint("DistanceY", 0, 2, 0, 1, Q("6 mm")),
    Sketcher.Constraint("DistanceY", 0, 2, -1, 1, Q("12.450571 mm")),
    Sketcher.Constraint("DistanceX", 0, 2, -1, 1, Q("36.000172 mm")),
])
sketch12.setExpression("Constraints[8]", "Params.sketch12_width")
sketch12.setExpression("Constraints[9]", "Params.sketch12_height")
pocket8 = body.newObject("PartDesign::Pocket", "Pocket007")
pocket8.Profile = sketch12
pocket8.setExpression("Length", "Params.pocket8_length")

doc.recompute()
